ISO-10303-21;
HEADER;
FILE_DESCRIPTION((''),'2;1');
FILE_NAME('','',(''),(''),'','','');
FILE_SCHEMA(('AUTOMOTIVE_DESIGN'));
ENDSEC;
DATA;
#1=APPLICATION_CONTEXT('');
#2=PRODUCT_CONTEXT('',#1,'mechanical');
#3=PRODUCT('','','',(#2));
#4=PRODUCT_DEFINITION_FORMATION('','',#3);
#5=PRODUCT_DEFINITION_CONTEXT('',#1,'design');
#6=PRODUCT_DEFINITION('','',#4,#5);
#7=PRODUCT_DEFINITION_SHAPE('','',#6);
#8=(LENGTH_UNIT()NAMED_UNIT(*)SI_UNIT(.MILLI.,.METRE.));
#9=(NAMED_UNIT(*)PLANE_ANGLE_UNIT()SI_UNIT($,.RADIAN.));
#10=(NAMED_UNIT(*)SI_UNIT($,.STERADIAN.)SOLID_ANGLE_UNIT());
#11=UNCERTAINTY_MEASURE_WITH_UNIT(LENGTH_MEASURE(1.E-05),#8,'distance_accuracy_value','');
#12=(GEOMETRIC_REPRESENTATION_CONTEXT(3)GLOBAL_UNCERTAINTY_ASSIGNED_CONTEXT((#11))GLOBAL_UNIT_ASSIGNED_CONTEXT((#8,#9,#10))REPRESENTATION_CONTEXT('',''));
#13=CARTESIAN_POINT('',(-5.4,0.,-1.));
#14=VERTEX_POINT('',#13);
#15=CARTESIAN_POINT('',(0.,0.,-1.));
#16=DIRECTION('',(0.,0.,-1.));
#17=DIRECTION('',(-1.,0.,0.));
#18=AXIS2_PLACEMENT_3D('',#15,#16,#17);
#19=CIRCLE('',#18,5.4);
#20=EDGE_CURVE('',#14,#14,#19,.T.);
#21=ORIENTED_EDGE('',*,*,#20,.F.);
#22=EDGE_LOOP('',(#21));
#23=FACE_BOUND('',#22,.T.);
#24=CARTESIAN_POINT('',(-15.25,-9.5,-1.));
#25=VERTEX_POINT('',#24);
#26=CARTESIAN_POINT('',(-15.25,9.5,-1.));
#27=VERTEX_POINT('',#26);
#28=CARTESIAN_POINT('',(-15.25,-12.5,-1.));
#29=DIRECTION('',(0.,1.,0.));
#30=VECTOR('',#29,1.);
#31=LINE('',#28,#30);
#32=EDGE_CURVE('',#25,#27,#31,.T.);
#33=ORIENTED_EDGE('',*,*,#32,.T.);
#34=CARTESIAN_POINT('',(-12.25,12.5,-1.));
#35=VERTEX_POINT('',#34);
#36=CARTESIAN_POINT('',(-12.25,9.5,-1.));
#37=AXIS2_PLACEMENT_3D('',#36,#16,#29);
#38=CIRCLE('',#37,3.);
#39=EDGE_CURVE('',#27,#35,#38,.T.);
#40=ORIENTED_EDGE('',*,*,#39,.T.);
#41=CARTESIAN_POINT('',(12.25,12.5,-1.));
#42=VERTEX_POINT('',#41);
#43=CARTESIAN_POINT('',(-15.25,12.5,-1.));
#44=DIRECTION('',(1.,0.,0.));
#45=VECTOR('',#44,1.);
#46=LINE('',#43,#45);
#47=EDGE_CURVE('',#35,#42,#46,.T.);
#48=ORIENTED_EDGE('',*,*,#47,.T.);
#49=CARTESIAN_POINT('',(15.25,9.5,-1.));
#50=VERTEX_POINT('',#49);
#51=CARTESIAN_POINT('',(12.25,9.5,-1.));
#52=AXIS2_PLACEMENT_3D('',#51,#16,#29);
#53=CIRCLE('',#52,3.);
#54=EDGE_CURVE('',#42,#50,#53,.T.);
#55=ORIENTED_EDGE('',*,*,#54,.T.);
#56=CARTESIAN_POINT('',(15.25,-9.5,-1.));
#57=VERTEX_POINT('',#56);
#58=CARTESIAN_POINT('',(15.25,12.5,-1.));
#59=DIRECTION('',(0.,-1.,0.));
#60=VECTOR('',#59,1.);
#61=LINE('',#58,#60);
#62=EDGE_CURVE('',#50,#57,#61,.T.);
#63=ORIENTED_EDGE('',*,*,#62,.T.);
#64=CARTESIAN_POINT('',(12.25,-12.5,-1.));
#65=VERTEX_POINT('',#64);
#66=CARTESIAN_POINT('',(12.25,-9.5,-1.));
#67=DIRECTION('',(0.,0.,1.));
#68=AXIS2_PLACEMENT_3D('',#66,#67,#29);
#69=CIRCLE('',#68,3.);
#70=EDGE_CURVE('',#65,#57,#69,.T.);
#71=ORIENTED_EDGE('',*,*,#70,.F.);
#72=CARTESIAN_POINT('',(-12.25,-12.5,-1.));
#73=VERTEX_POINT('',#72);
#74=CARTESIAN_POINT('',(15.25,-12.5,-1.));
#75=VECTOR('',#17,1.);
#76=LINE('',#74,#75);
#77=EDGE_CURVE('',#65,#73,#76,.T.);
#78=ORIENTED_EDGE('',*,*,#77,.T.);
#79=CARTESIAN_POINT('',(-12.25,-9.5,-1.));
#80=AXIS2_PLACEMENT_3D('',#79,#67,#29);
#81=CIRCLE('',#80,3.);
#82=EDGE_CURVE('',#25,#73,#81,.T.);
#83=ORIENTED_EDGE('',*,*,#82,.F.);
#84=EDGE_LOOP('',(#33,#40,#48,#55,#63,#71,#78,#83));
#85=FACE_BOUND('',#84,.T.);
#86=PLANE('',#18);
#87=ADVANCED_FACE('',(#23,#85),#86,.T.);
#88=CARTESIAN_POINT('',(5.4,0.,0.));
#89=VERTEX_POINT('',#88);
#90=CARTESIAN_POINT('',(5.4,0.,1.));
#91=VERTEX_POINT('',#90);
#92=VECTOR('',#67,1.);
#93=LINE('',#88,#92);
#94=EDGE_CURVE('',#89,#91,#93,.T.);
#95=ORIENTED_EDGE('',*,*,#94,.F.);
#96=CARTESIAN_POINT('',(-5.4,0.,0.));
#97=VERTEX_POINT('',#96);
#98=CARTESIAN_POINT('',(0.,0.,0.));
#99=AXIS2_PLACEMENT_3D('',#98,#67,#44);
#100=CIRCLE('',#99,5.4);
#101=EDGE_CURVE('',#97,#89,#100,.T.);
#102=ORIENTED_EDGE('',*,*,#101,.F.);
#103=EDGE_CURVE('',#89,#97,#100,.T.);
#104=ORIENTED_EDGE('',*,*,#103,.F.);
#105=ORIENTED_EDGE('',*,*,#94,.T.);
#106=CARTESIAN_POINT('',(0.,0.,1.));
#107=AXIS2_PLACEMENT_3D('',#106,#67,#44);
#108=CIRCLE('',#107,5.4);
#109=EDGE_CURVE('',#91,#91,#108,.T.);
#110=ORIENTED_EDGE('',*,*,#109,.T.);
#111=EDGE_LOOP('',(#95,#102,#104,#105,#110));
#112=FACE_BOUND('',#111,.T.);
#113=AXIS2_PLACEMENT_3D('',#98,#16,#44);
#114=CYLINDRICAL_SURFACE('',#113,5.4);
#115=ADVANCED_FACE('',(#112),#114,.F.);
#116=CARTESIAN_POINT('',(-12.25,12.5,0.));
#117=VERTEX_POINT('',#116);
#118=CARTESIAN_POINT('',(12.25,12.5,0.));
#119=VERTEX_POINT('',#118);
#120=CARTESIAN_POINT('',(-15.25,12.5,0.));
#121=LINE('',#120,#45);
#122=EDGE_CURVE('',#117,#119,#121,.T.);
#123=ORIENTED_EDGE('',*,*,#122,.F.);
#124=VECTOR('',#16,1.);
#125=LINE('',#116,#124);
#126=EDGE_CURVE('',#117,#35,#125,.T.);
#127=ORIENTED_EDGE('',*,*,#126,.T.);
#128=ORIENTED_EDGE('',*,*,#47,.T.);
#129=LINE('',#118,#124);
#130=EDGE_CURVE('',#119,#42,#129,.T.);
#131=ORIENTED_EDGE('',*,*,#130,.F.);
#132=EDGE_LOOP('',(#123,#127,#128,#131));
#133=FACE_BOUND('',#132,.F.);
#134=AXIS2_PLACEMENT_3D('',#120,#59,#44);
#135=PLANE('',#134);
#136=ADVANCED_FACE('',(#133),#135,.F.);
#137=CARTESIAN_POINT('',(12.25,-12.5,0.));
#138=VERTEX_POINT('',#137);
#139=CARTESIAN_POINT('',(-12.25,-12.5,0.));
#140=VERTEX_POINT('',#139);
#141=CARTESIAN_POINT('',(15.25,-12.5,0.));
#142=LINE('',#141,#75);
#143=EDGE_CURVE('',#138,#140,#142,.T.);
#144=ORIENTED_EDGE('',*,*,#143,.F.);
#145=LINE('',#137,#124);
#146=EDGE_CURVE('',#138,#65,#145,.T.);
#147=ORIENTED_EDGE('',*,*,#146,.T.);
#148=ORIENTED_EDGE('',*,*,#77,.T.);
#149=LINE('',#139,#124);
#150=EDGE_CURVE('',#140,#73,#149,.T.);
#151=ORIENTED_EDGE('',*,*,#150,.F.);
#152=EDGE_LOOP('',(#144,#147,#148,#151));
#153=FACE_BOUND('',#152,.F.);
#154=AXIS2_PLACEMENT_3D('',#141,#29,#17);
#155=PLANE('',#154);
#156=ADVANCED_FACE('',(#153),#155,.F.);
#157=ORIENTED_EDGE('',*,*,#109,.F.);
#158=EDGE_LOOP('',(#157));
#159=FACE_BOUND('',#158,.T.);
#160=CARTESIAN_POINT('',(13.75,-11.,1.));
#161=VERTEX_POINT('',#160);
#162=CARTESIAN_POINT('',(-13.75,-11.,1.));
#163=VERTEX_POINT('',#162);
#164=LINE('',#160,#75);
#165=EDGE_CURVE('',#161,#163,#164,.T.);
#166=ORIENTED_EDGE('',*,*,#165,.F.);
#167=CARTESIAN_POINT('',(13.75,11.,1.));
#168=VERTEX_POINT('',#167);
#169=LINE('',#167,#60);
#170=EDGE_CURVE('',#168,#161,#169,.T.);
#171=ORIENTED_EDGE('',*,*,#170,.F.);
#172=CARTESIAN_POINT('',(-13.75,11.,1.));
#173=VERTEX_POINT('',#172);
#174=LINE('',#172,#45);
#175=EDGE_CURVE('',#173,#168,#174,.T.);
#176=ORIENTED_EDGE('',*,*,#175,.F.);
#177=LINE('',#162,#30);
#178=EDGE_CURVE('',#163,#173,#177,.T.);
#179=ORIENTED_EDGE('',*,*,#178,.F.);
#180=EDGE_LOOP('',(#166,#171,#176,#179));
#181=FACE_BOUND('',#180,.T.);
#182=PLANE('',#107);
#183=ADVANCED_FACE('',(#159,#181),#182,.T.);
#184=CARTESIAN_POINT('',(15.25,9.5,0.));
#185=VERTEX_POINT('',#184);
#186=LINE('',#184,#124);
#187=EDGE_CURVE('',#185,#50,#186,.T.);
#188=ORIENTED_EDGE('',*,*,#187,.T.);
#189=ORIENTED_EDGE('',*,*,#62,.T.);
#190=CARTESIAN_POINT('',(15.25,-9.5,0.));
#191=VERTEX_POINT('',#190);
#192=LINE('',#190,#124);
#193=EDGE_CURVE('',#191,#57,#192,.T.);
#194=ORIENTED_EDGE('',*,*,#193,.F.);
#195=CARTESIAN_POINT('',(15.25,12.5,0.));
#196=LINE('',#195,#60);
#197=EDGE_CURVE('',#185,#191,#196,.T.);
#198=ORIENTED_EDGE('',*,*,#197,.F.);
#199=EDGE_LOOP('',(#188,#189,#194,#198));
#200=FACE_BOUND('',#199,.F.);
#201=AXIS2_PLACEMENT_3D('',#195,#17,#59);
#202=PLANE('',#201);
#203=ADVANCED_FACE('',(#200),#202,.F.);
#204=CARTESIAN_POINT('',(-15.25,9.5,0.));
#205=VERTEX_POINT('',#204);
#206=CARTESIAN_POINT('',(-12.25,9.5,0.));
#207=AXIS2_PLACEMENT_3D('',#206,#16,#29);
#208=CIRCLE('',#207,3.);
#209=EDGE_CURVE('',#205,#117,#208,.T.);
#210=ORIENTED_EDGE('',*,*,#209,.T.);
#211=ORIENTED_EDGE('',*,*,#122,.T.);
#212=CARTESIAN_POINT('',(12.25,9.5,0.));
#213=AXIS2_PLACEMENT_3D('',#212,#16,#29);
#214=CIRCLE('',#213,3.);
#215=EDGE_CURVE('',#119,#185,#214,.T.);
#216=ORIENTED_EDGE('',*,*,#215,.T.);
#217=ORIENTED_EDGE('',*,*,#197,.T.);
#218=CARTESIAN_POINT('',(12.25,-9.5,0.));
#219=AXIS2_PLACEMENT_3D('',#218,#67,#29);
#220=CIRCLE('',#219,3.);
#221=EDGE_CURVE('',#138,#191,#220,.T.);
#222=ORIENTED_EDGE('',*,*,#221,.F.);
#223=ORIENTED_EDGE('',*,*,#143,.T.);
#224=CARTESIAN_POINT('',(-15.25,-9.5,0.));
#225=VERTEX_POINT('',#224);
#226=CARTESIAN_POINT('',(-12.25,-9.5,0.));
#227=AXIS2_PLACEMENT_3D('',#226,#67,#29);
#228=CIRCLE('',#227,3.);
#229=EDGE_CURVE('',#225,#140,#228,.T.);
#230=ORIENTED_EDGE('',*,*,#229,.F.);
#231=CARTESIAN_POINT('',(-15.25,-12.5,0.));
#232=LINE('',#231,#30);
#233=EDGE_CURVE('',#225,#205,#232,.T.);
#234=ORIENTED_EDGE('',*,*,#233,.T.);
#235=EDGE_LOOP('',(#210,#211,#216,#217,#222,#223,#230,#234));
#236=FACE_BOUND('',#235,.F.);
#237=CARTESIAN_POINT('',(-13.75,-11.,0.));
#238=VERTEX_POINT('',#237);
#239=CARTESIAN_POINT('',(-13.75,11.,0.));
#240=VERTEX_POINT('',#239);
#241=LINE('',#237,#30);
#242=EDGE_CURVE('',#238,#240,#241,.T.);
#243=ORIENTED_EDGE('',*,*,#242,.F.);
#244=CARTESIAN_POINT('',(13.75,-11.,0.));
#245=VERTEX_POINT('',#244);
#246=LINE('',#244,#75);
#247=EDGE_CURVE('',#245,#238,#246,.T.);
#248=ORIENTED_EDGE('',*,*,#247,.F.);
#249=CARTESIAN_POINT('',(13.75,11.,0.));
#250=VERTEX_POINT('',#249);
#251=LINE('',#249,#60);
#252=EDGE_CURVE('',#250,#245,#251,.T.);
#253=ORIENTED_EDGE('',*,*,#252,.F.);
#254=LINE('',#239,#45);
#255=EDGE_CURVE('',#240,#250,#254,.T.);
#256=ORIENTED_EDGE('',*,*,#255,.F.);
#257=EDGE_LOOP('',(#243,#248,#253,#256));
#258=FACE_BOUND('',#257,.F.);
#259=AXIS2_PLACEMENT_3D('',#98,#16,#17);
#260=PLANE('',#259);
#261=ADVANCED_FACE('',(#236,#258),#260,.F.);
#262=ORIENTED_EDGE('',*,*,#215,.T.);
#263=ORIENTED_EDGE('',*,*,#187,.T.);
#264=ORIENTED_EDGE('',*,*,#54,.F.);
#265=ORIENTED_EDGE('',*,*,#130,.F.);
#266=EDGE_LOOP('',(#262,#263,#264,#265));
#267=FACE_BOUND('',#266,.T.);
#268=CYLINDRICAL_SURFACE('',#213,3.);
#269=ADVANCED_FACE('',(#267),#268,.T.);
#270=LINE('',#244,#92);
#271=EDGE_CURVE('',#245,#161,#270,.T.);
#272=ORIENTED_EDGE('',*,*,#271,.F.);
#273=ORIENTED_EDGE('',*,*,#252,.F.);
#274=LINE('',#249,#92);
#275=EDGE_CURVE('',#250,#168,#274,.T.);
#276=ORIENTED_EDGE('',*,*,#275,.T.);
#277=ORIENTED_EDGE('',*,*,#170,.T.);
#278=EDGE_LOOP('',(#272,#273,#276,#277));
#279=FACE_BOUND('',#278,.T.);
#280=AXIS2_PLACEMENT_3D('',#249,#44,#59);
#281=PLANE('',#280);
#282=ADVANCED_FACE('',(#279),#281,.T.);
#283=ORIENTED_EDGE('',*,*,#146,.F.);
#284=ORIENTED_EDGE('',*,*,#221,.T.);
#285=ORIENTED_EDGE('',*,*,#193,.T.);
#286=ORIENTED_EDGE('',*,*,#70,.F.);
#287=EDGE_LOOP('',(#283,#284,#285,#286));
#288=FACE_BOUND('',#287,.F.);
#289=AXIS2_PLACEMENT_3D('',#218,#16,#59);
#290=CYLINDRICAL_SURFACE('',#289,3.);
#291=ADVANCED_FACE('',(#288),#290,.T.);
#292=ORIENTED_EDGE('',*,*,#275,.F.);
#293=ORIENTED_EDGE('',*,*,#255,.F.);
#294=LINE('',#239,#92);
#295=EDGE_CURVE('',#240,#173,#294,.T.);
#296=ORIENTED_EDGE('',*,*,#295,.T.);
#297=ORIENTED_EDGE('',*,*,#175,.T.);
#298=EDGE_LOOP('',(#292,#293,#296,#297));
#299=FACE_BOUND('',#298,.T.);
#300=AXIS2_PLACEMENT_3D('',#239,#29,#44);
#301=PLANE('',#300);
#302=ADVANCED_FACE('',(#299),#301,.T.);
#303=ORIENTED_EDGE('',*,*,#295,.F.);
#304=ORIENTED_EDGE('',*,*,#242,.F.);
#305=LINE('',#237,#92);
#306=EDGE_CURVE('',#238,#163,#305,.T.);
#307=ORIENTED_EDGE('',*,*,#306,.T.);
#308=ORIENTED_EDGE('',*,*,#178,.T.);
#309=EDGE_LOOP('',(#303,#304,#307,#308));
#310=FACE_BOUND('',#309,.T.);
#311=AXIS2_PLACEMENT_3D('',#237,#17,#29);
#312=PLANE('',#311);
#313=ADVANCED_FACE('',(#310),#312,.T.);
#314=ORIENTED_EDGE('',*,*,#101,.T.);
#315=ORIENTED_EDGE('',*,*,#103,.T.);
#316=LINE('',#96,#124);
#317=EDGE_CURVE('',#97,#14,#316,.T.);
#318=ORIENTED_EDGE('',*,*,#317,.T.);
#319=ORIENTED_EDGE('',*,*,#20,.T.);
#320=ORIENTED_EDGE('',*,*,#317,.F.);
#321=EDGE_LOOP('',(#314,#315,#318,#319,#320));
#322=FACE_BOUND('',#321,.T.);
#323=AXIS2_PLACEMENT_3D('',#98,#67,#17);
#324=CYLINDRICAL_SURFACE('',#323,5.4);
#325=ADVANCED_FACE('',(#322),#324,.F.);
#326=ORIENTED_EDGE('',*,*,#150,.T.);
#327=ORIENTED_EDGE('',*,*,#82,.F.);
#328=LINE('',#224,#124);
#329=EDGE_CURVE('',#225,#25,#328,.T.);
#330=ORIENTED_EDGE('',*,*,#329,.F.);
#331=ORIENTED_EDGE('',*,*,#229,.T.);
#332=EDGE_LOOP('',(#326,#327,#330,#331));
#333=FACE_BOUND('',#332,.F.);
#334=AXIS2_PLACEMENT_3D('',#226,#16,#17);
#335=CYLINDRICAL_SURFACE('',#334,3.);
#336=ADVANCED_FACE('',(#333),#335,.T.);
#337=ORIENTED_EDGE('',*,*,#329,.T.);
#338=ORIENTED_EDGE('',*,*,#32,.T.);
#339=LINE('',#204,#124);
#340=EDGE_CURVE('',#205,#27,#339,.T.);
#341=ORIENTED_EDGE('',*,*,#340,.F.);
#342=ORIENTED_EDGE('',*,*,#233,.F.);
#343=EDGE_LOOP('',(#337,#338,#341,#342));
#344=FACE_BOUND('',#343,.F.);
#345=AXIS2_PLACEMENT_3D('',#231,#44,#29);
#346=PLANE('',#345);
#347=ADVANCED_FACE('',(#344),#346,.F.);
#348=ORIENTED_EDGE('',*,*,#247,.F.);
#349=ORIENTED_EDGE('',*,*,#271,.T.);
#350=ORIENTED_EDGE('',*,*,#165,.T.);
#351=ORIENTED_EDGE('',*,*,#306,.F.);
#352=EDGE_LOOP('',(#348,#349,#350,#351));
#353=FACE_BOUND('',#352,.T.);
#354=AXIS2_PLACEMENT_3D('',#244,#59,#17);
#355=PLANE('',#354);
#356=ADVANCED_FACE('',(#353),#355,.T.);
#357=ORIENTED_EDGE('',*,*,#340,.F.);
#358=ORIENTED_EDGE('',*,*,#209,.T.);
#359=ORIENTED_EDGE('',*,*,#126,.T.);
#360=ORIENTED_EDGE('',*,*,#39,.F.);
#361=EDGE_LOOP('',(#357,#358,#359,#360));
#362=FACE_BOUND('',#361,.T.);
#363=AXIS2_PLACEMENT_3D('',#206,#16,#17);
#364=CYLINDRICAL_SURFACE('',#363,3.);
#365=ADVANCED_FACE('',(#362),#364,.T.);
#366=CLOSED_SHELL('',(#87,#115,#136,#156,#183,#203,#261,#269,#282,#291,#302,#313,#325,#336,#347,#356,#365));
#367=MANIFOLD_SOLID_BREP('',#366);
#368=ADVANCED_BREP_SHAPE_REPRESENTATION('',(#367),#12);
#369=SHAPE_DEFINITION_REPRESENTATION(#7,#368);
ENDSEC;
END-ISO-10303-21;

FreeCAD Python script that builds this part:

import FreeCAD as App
import Part
import Sketcher

V = App.Vector
Q = App.Units.Quantity


def edges_at(feature, points):
    """Names of the edges that pass closest to the given points."""
    edges = feature.Shape.Edges
    near = lambda p: min(range(len(edges)), key=lambda i: edges[i].distToShape(Part.Vertex(*p))[0])
    return sorted({f"Edge{near(p) + 1}" for p in points})

doc = App.newDocument("Part")
params = doc.addObject("Spreadsheet::Sheet", "Params")
for row, (alias, value) in enumerate([
    ("sketch1_diameter", "10.8 mm"),
    ("sketch1_height", "22 mm"),
    ("sketch1_width", "27.5 mm"),
    ("pad1_length", "1 mm"),
    ("sketch2_diameter", "10.8 mm"),
    ("sketch2_height", "25 mm"),
    ("sketch2_width", "30.5 mm"),
    ("pad2_length", "1 mm"),
    ("fillet_radius", "3 mm"),
], start=1):
    params.set(f"A{row}", alias)
    params.set(f"B{row}", "=" + value)
    params.setAlias(f"B{row}", alias)

body = doc.addObject("PartDesign::Body", "Body")

# Sketch on XY plane
sketch1 = body.newObject("Sketcher::SketchObject", "Sketch")
sketch1.AttachmentSupport = (doc.getObject("XY_Plane"), [""])
sketch1.MapMode = "FlatFace"
sketch1.addGeometry([
    Part.LineSegment(V(-13.75, -11, 0), V(13.75, -11, 0)),  # 0
    Part.LineSegment(V(13.75, -11, 0), V(13.75, 11, 0)),  # 1
    Part.LineSegment(V(13.75, 11, 0), V(-13.75, 11, 0)),  # 2
    Part.LineSegment(V(-13.75, 11, 0), V(-13.75, -11, 0)),  # 3
    Part.Circle(V(0, 0, 0), V(0, 0, 1), 5.4),  # 4
], False)
sketch1.addConstraint([
    Sketcher.Constraint("Coincident", 0, 2, 1, 1),
    Sketcher.Constraint("Coincident", 1, 2, 2, 1),
    Sketcher.Constraint("Coincident", 2, 2, 3, 1),
    Sketcher.Constraint("Coincident", 3, 2, 0, 1),
    Sketcher.Constraint("Horizontal", 0),
    Sketcher.Constraint("Vertical", 1),
    Sketcher.Constraint("Horizontal", 2),
    Sketcher.Constraint("Vertical", 3),
    Sketcher.Constraint("Coincident", 4, 3, -1, 1),
    Sketcher.Constraint("Symmetric", 0, 2, 2, 2, -1, 1),
    Sketcher.Constraint("Diameter", 4, Q("10.8 mm")),
    Sketcher.Constraint("DistanceY", 1, 1, 1, 2, Q("22 mm")),
    Sketcher.Constraint("DistanceX", 0, 1, 0, 2, Q("27.5 mm")),
])
sketch1.setExpression("Constraints[10]", "Params.sketch1_diameter")
sketch1.setExpression("Constraints[11]", "Params.sketch1_height")
sketch1.setExpression("Constraints[12]", "Params.sketch1_width")
pad1 = body.newObject("PartDesign::Pad", "Pad")
pad1.Profile = sketch1
pad1.setExpression("Length", "Params.pad1_length")

# Sketch on XY plane
sketch2 = body.newObject("Sketcher::SketchObject", "Sketch001")
sketch2.AttachmentSupport = (doc.getObject("XY_Plane"), [""])
sketch2.MapMode = "FlatFace"
sketch2.addGeometry([
    Part.LineSegment(V(-15.25, -12.5, 0), V(-15.25, 12.5, 0)),  # 0
    Part.LineSegment(V(-15.25, 12.5, 0), V(15.25, 12.5, 0)),  # 1
    Part.LineSegment(V(15.25, 12.5, 0), V(15.25, -12.5, 0)),  # 2
    Part.LineSegment(V(15.25, -12.5, 0), V(-15.25, -12.5, 0)),  # 3
    Part.Circle(V(0, 0, 0), V(0, 0, 1), 5.4),  # 4
], False)
sketch2.addConstraint([
    Sketcher.Constraint("Coincident", 0, 2, 1, 1),
    Sketcher.Constraint("Coincident", 1, 2, 2, 1),
    Sketcher.Constraint("Coincident", 2, 2, 3, 1),
    Sketcher.Constraint("Coincident", 3, 2, 0, 1),
    Sketcher.Constraint("Vertical", 0),
    Sketcher.Constraint("Horizontal", 1),
    Sketcher.Constraint("Vertical", 2),
    Sketcher.Constraint("Horizontal", 3),
    Sketcher.Constraint("Coincident", 4, 3, -1, 1),
    Sketcher.Constraint("Symmetric", 0, 2, 2, 2, -1, 1),
    Sketcher.Constraint("Diameter", 4, Q("10.8 mm")),
    Sketcher.Constraint("DistanceY", 0, 1, 0, 2, Q("25 mm")),
    Sketcher.Constraint("DistanceX", 1, 1, 1, 2, Q("30.5 mm")),
])
sketch2.setExpression("Constraints[10]", "Params.sketch2_diameter")
sketch2.setExpression("Constraints[11]", "Params.sketch2_height")
sketch2.setExpression("Constraints[12]", "Params.sketch2_width")
pad2 = body.newObject("PartDesign::Pad", "Pad001")
pad2.Profile = sketch2
pad2.setExpression("Length", "Params.pad2_length")
pad2.Reversed = True
doc.recompute()

fillet = body.newObject("PartDesign::Fillet", "Fillet")
fillet.Base = (pad2, edges_at(pad2, [
    (-15.25, 12.5, -0.5),
    (-15.25, -12.5, -0.5),
    (15.25, -12.5, -0.5),
    (15.25, 12.5, -0.5),
]))
fillet.setExpression("Radius", "Params.fillet_radius")

doc.recompute()
